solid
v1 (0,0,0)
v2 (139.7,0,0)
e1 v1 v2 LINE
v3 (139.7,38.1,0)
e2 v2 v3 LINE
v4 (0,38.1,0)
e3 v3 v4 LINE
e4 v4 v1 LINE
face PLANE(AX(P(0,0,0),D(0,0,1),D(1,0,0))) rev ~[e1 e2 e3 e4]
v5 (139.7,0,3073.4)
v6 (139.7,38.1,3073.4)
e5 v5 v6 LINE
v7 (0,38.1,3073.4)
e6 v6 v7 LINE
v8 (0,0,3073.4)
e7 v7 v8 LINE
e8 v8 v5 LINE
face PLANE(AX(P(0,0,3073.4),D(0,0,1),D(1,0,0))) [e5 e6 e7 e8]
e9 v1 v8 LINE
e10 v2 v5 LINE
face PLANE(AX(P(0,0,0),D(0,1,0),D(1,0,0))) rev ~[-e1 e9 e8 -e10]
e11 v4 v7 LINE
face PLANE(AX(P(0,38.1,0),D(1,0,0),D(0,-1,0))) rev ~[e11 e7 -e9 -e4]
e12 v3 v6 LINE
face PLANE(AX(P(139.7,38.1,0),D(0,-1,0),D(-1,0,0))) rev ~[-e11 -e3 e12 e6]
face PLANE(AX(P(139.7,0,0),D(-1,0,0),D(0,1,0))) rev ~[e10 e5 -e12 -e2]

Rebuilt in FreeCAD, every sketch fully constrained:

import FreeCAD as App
import Part
import Sketcher
Q = App.Units.Quantity

doc = App.newDocument("Part")
body = doc.addObject("PartDesign::Body", "Body")

sketch1 = body.newObject("Sketcher::SketchObject", "Sketch")
sketch1.AttachmentSupport = (doc.getObject("XY_Plane"), [""])
sketch1.MapMode = "FlatFace"
sketch1.addGeometry([
    Part.LineSegment(App.Vector(0, 38, 0), App.Vector(0, 0, 0)),
    Part.LineSegment(App.Vector(0, 0, 0), App.Vector(140, 0, 0)),
    Part.LineSegment(App.Vector(140, 0, 0), App.Vector(140, 38, 0)),
    Part.LineSegment(App.Vector(140, 38, 0), App.Vector(0, 38, 0)),
], False)
sketch1.addConstraint([
    Sketcher.Constraint("Coincident", 0, 2, 1, 1),
    Sketcher.Constraint("Coincident", 1, 2, 2, 1),
    Sketcher.Constraint("Coincident", 2, 2, 3, 1),
    Sketcher.Constraint("Coincident", 3, 2, 0, 1),
    Sketcher.Constraint("Vertical", 0),
    Sketcher.Constraint("Horizontal", 1),
    Sketcher.Constraint("Vertical", 2),
    Sketcher.Constraint("Horizontal", 3),
    Sketcher.Constraint("Coincident", 0, 2, -1, 1),
    Sketcher.Constraint("DistanceX", 1, 1, 1, 2, Q("5.5 in")),
    Sketcher.Constraint("DistanceY", 0, 2, 0, 1, Q("1.5 in")),
])
pad1 = body.newObject("PartDesign::Pad", "Pad")
pad1.Profile = sketch1
pad1.Length = Q("121 in")

doc.recompute()
